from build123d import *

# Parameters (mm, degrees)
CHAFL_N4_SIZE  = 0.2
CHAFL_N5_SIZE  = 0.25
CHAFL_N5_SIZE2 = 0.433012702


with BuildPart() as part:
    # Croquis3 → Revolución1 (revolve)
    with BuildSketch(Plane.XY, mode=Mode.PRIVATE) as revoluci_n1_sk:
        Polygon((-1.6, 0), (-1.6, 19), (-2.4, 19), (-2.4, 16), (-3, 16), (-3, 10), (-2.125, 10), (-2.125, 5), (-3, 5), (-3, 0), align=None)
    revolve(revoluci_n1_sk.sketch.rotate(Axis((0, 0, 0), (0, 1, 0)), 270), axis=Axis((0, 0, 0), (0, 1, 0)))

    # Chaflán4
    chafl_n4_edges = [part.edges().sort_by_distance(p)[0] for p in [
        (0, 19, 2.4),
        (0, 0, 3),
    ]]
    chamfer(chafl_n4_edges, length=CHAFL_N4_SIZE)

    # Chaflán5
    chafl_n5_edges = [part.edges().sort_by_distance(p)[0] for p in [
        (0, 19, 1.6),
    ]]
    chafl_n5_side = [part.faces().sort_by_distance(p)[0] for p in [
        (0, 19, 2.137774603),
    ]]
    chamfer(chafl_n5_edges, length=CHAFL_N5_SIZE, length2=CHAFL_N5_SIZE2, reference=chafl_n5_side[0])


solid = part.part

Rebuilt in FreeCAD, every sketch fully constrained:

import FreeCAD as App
import Part
import Sketcher

V = App.Vector


def edges_at(feature, points):
    """Names of the edges that pass closest to the given points."""
    edges = feature.Shape.Edges
    near = lambda p: min(range(len(edges)), key=lambda i: edges[i].distToShape(Part.Vertex(*p))[0])
    return sorted({f"Edge{near(p) + 1}" for p in points})

doc = App.newDocument("Part")
params = doc.addObject("Spreadsheet::Sheet", "Params")
for row, (alias, value) in enumerate([
    ("sketch1_height", "19 mm"),
    ("sketch1_height2", "3 mm"),
    ("sketch1_height3", "6 mm"),
    ("sketch1_width", "0.8 mm"),
    ("sketch1_width2", "0.6 mm"),
    ("revolution_angle", "360 deg"),
    ("chamfer_size", "0.2 mm"),
    ("chamfer2_size", "0.25 mm"),
    ("chamfer2_size2", "0.433013 mm"),
], start=1):
    params.set(f"A{row}", alias)
    params.set(f"B{row}", "=" + value)
    params.setAlias(f"B{row}", alias)

body = doc.addObject("PartDesign::Body", "Body")

# Sketch on XY plane
sketch1 = doc.addObject("Sketcher::SketchObject", "Sketch")
body.addObject(sketch1)
sketch1.AttachmentSupport = (doc.XY_Plane, [""])
sketch1.MapMode = "FlatFace"
sketch1.addGeometry(Part.LineSegment(V(-1.6, 0, 0), V(-1.6, 19, 0)), False)
sketch1.addGeometry(Part.LineSegment(V(-1.6, 19, 0), V(-2.4, 19, 0)), False)
sketch1.addGeometry(Part.LineSegment(V(-2.4, 19, 0), V(-2.4, 16, 0)), False)
sketch1.addGeometry(Part.LineSegment(V(-2.4, 16, 0), V(-3, 16, 0)), False)
sketch1.addGeometry(Part.LineSegment(V(-3, 16, 0), V(-3, 10, 0)), False)
sketch1.addGeometry(Part.LineSegment(V(-3, 10, 0), V(-2.1, 10, 0)), False)
sketch1.addGeometry(Part.LineSegment(V(-2.1, 10, 0), V(-2.1, 5, 0)), False)
sketch1.addGeometry(Part.LineSegment(V(-2.1, 5, 0), V(-3, 5, 0)), False)
sketch1.addGeometry(Part.LineSegment(V(-3, 5, 0), V(-3, 0, 0)), False)
sketch1.addGeometry(Part.LineSegment(V(-3, 0, 0), V(-1.6, 0, 0)), False)
sketch1.addConstraint(Sketcher.Constraint("Coincident", 0, 2, 1, 1))
sketch1.addConstraint(Sketcher.Constraint("Coincident", 1, 2, 2, 1))
sketch1.addConstraint(Sketcher.Constraint("Coincident", 2, 2, 3, 1))
sketch1.addConstraint(Sketcher.Constraint("Coincident", 3, 2, 4, 1))
sketch1.addConstraint(Sketcher.Constraint("Coincident", 4, 2, 5, 1))
sketch1.addConstraint(Sketcher.Constraint("Coincident", 5, 2, 6, 1))
sketch1.addConstraint(Sketcher.Constraint("Coincident", 6, 2, 7, 1))
sketch1.addConstraint(Sketcher.Constraint("Coincident", 7, 2, 8, 1))
sketch1.addConstraint(Sketcher.Constraint("Coincident", 8, 2, 9, 1))
sketch1.addConstraint(Sketcher.Constraint("Coincident", 9, 2, 0, 1))
sketch1.addConstraint(Sketcher.Constraint("Vertical", 0))
sketch1.addConstraint(Sketcher.Constraint("Horizontal", 1))
sketch1.addConstraint(Sketcher.Constraint("Vertical", 2))
sketch1.addConstraint(Sketcher.Constraint("Horizontal", 3))
sketch1.addConstraint(Sketcher.Constraint("Vertical", 4))
sketch1.addConstraint(Sketcher.Constraint("Horizontal", 5))
sketch1.addConstraint(Sketcher.Constraint("Vertical", 6))
sketch1.addConstraint(Sketcher.Constraint("Horizontal", 7))
sketch1.addConstraint(Sketcher.Constraint("Vertical", 8))
sketch1.addConstraint(Sketcher.Constraint("Horizontal", 9))
sketch1.addConstraint(Sketcher.Constraint("PointOnObject", 8, 2, -1))
sketch1.addConstraint(Sketcher.Constraint("Vertical", 4, 2, 7, 2))
sketch1.addConstraint(Sketcher.Constraint("Equal", 6, 8))
sketch1.addConstraint(Sketcher.Constraint("DistanceY", 0, 1, 0, 2, 19.0))
sketch1.addConstraint(Sketcher.Constraint("DistanceY", 2, 2, 2, 1, 3.0))
sketch1.addConstraint(Sketcher.Constraint("DistanceY", 4, 2, 4, 1, 6.0))
sketch1.addConstraint(Sketcher.Constraint("DistanceX", 1, 2, 1, 1, 0.8))
sketch1.addConstraint(Sketcher.Constraint("DistanceX", 3, 2, 3, 1, 0.6))
sketch1.addConstraint(Sketcher.Constraint("DistanceX", 3, 2, -1, 1, 3.0))
sketch1.addConstraint(Sketcher.Constraint("DistanceX", 5, 1, 5, 2, 0.875))
sketch1.setExpression("Constraints[23]", "Params.sketch1_height")
sketch1.setExpression("Constraints[24]", "Params.sketch1_height2")
sketch1.setExpression("Constraints[25]", "Params.sketch1_height3")
sketch1.setExpression("Constraints[26]", "Params.sketch1_width")
sketch1.setExpression("Constraints[27]", "Params.sketch1_width2")
revolution = doc.addObject("PartDesign::Revolution", "Revolution")
body.addObject(revolution)
revolution.Profile = sketch1
revolution.ReferenceAxis = (sketch1, ["V_Axis"])
revolution.setExpression("Angle", "Params.revolution_angle")
doc.recompute()

chamfer = doc.addObject("PartDesign::Chamfer", "Chamfer")
body.addObject(chamfer)
chamfer.Base = (revolution, edges_at(revolution, [(0, 19, 2.4), (0, 0, 3)]))
chamfer.setExpression("Size", "Params.chamfer_size")
doc.recompute()

chamfer2 = doc.addObject("PartDesign::Chamfer", "Chamfer001")
body.addObject(chamfer2)
chamfer2.Base = (chamfer, edges_at(chamfer, [(0, 19, 1.6)]))
chamfer2.ChamferType = "Two distances"
chamfer2.setExpression("Size", "Params.chamfer2_size")
chamfer2.setExpression("Size2", "Params.chamfer2_size2")

doc.recompute()
